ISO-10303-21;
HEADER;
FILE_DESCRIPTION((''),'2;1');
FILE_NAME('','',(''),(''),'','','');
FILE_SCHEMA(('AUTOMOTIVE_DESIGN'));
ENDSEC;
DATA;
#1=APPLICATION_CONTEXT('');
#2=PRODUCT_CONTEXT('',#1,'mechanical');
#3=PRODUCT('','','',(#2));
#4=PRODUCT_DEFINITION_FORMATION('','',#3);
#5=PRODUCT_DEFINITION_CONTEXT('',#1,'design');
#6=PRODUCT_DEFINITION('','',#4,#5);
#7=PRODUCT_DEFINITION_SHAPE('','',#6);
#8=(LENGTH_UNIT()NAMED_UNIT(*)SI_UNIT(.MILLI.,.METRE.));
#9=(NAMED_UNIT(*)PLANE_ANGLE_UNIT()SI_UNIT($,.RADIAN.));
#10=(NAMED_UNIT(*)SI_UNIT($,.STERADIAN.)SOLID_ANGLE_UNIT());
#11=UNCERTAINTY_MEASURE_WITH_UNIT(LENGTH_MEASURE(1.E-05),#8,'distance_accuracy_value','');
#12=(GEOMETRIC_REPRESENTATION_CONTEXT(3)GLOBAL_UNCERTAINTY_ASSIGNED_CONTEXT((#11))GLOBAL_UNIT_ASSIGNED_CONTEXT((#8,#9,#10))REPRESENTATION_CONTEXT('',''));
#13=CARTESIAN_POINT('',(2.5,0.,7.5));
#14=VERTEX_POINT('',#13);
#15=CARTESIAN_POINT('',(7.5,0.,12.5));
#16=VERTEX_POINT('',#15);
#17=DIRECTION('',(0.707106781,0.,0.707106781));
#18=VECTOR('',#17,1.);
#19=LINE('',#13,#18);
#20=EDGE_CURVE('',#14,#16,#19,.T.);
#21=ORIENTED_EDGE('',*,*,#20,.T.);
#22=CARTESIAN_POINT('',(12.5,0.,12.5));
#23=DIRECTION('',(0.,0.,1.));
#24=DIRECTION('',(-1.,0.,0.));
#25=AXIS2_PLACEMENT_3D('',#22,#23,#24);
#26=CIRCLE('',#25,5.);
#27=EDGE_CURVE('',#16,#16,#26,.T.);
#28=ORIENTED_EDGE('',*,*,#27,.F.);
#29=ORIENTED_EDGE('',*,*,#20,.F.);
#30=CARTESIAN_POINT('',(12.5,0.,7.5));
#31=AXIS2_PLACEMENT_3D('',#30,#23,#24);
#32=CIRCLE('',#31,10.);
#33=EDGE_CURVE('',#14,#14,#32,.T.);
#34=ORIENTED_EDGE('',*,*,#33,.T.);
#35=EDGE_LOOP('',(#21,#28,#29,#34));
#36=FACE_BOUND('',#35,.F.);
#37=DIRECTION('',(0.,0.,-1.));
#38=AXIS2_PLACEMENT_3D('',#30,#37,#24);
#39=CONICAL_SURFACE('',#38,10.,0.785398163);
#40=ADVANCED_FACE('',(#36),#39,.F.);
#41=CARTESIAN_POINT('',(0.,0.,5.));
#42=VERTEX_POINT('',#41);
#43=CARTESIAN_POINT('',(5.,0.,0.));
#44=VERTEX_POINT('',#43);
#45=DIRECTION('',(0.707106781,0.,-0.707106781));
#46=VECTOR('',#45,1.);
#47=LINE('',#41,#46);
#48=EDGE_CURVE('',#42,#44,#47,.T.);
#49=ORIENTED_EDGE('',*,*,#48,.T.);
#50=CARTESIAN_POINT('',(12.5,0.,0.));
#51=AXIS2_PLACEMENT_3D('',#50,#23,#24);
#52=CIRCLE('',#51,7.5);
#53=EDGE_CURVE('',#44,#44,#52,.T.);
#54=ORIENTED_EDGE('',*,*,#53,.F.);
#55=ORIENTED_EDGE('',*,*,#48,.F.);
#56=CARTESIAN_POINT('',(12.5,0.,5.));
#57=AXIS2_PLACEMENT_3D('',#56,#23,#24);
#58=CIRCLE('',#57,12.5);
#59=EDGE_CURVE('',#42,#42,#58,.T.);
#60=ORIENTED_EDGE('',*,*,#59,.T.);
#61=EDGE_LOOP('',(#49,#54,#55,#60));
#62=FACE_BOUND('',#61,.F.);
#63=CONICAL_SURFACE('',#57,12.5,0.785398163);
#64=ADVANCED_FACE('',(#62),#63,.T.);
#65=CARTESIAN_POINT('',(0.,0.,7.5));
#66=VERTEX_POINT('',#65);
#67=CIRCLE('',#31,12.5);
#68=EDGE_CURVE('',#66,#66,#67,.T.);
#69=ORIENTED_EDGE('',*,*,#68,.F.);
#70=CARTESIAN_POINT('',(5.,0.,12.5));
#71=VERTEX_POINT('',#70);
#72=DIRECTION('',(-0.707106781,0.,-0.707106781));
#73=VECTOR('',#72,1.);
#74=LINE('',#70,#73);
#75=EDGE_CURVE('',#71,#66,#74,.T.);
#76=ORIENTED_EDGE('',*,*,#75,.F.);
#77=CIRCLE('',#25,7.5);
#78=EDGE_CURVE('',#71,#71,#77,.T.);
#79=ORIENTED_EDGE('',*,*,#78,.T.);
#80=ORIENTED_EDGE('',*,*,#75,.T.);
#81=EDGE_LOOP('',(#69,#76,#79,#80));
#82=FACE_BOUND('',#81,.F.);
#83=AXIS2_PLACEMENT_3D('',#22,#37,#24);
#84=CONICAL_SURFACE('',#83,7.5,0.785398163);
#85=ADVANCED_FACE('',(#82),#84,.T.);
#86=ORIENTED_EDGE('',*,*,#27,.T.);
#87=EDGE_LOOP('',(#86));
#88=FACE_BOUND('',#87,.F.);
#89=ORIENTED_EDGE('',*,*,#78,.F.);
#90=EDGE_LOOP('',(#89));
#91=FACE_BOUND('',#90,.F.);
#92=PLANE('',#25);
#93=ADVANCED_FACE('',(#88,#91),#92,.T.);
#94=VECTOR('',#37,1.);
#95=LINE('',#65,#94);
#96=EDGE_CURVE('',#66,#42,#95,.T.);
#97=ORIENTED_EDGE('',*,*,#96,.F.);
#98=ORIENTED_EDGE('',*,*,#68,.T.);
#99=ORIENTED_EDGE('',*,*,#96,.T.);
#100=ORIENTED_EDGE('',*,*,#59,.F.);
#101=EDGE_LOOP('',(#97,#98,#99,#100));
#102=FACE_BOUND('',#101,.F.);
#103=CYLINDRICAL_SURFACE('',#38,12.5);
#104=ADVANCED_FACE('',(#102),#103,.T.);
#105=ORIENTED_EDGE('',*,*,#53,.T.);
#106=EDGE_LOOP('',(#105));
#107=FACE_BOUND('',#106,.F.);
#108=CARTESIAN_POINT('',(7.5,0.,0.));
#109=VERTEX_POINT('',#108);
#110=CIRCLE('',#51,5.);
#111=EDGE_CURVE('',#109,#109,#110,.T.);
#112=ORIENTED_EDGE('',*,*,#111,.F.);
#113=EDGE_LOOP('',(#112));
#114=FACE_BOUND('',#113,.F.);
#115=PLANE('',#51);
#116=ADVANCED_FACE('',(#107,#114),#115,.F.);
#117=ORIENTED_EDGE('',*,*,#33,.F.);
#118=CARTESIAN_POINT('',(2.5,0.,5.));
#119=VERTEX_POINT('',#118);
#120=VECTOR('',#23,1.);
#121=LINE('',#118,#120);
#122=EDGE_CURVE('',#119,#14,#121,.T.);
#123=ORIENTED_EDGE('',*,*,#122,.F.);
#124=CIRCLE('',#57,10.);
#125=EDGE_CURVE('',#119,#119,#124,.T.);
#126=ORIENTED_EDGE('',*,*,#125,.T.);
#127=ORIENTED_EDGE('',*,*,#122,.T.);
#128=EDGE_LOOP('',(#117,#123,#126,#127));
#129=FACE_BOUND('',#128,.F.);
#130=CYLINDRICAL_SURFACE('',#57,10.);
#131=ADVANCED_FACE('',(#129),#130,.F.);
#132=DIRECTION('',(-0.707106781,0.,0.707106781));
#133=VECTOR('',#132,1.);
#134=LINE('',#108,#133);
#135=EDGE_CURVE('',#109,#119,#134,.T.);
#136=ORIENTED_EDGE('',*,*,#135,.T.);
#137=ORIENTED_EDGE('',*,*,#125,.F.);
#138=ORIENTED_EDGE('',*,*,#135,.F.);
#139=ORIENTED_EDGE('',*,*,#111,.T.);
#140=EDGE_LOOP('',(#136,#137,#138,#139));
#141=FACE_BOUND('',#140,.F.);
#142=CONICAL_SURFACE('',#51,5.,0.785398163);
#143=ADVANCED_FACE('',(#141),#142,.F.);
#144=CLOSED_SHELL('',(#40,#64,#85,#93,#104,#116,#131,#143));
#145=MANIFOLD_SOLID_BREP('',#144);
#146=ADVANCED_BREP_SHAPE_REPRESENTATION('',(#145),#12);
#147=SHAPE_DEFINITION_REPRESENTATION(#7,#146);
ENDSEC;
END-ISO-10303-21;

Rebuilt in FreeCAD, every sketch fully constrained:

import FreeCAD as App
import Part
import Sketcher


def add_polygon(sketch, points):
    """Adds a closed chain of lines whose ends are joined by coincident constraints."""
    first, n = sketch.GeometryCount, len(points)
    for a, b in zip(points, points[1:] + points[:1]):
        sketch.addGeometry(Part.LineSegment(App.Vector(*a, 0), App.Vector(*b, 0)), False)
    for i in range(n):
        sketch.addConstraint(Sketcher.Constraint("Coincident", first + i, 2, first + (i + 1) % n, 1))

doc = App.newDocument("Part")
body = doc.addObject("PartDesign::Body", "Body")

sketch1 = doc.addObject("Sketcher::SketchObject", "Sketch")
body.addObject(sketch1)
sketch1.AttachmentSupport = (doc.XZ_Plane, [""])
sketch1.MapMode = "FlatFace"
add_polygon(sketch1, [(5, 12.5), (0, 7.5), (0, 5), (5, 0), (7.5, 0), (2.5, 5), (2.5, 7.5), (7.5, 12.5)])
sketch1.addGeometry(Part.LineSegment(App.Vector(12.5, 0, 0), App.Vector(12.5, 12.5, 0)), True)
sketch1.addConstraint([
    Sketcher.Constraint("Vertical", 1),
    Sketcher.Constraint("Horizontal", 3),
    Sketcher.Constraint("Vertical", 5),
    Sketcher.Constraint("Horizontal", 7),
    Sketcher.Constraint("Vertical", 8),
    Sketcher.Constraint("PointOnObject", 0, 2, -2),
    Sketcher.Constraint("PointOnObject", 2, 2, -1),
    Sketcher.Constraint("PointOnObject", 8, 1, -1),
    Sketcher.Constraint("Perpendicular", 0, 2),
    Sketcher.Constraint("Parallel", 2, 4),
    Sketcher.Constraint("Perpendicular", 4, 6),
    Sketcher.Constraint("Horizontal", 1, 2, 4, 2),
    Sketcher.Constraint("Horizontal", 0, 2, 5, 2),
    Sketcher.Constraint("Horizontal", 7, 2, 8, 2),
    Sketcher.Constraint("Vertical", 3, 2, 6, 2),
    Sketcher.Constraint("Equal", 7, 1),
    Sketcher.Constraint("Equal", 0, 2),
    Sketcher.Constraint("DistanceX", 3, 1, 3, 2, 2.5),
    Sketcher.Constraint("DistanceY", 8, 1, 8, 2, 12.5),
    Sketcher.Constraint("DistanceX", 3, 2, 8, 1, 5.0),
])
revolution = doc.addObject("PartDesign::Revolution", "Revolution")
body.addObject(revolution)
revolution.Profile = sketch1
revolution.ReferenceAxis = (sketch1, ["Axis0"])
revolution.Angle = 360

doc.recompute()
